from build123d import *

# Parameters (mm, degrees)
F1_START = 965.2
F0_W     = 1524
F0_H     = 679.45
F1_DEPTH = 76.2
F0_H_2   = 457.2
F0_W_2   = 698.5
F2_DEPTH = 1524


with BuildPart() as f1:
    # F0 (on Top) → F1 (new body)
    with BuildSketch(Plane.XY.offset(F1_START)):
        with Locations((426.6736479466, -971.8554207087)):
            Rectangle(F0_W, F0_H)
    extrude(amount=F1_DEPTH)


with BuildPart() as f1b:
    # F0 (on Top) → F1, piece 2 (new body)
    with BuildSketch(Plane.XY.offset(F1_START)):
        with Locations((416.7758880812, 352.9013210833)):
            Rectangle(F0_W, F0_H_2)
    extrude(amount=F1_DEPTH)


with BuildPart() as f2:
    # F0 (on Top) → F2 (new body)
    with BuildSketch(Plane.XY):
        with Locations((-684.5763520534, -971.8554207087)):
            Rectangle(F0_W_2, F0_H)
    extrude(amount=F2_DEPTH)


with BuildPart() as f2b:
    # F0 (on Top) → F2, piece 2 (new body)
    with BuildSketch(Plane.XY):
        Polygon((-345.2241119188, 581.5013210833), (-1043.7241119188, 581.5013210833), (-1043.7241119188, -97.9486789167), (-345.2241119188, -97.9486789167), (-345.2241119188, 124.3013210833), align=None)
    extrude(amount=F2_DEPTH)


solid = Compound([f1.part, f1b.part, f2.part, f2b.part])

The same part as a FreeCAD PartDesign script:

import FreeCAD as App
import Part
import Sketcher

V = App.Vector
Q = App.Units.Quantity

doc = App.newDocument("Part")
params = doc.addObject("Spreadsheet::Sheet", "Params")
for row, (alias, value) in enumerate([
    ("sketch1_width", "60 in"),
    ("sketch1_height", "26.75 in"),
    ("pad1_length", "3 in"),
    ("sketch2_width", "60 in"),
    ("sketch2_height", "18 in"),
    ("pad2_length", "3 in"),
    ("sketch3_width", "27.5 in"),
    ("sketch3_height", "26.75 in"),
    ("pad3_length", "60 in"),
    ("sketch4_width", "27.5 in"),
    ("sketch4_height", "26.75 in"),
    ("pad4_length", "60 in"),
], start=1):
    params.set(f"A{row}", alias)
    params.set(f"B{row}", "=" + value)
    params.setAlias(f"B{row}", alias)

body = doc.addObject("PartDesign::Body", "Body")

sketch1 = doc.addObject("Sketcher::SketchObject", "Sketch")
body.addObject(sketch1)
sketch1.AttachmentSupport = (doc.XY_Plane, [""])
sketch1.MapMode = "FlatFace"
sketch1.AttachmentOffset = App.Placement(V(0, 0, 38 * 25.4), App.Rotation())
sketch1.addGeometry(Part.LineSegment(V(-335, -632, 0), V(-335, -1312, 0)), False)
sketch1.addGeometry(Part.LineSegment(V(-335, -1312, 0), V(1189, -1312, 0)), False)
sketch1.addGeometry(Part.LineSegment(V(1189, -1312, 0), V(1189, -632, 0)), False)
sketch1.addGeometry(Part.LineSegment(V(1189, -632, 0), V(-335, -632, 0)), False)
sketch1.addConstraint(Sketcher.Constraint("Coincident", 0, 2, 1, 1))
sketch1.addConstraint(Sketcher.Constraint("Coincident", 1, 2, 2, 1))
sketch1.addConstraint(Sketcher.Constraint("Coincident", 2, 2, 3, 1))
sketch1.addConstraint(Sketcher.Constraint("Coincident", 3, 2, 0, 1))
sketch1.addConstraint(Sketcher.Constraint("Vertical", 0))
sketch1.addConstraint(Sketcher.Constraint("Horizontal", 1))
sketch1.addConstraint(Sketcher.Constraint("Vertical", 2))
sketch1.addConstraint(Sketcher.Constraint("Horizontal", 3))
sketch1.addConstraint(Sketcher.Constraint("DistanceX", 1, 1, 1, 2, Q("60 in")))
sketch1.addConstraint(Sketcher.Constraint("DistanceY", 0, 2, 0, 1, Q("26.75 in")))
sketch1.addConstraint(Sketcher.Constraint("DistanceY", 0, 2, -1, 1, Q("1311.580421 mm")))
sketch1.addConstraint(Sketcher.Constraint("DistanceX", 0, 2, -1, 1, Q("335.326352 mm")))
sketch1.setExpression("Constraints[8]", "Params.sketch1_width")
sketch1.setExpression("Constraints[9]", "Params.sketch1_height")
pad1 = doc.addObject("PartDesign::Pad", "Pad")
body.addObject(pad1)
pad1.Profile = sketch1
pad1.setExpression("Length", "Params.pad1_length")
body2 = doc.addObject("PartDesign::Body", "Body001")

sketch2 = doc.addObject("Sketcher::SketchObject", "Sketch001")
body2.addObject(sketch2)
sketch2.AttachmentSupport = (doc.getObject("XY_Plane001"), [""])
sketch2.MapMode = "FlatFace"
sketch2.AttachmentOffset = App.Placement(V(0, 0, 38 * 25.4), App.Rotation())
sketch2.addGeometry(Part.LineSegment(V(-345, 582, 0), V(-345, 124, 0)), False)
sketch2.addGeometry(Part.LineSegment(V(-345, 124, 0), V(1179, 124, 0)), False)
sketch2.addGeometry(Part.LineSegment(V(1179, 124, 0), V(1179, 582, 0)), False)
sketch2.addGeometry(Part.LineSegment(V(1179, 582, 0), V(-345, 582, 0)), False)
sketch2.addConstraint(Sketcher.Constraint("Coincident", 0, 2, 1, 1))
sketch2.addConstraint(Sketcher.Constraint("Coincident", 1, 2, 2, 1))
sketch2.addConstraint(Sketcher.Constraint("Coincident", 2, 2, 3, 1))
sketch2.addConstraint(Sketcher.Constraint("Coincident", 3, 2, 0, 1))
sketch2.addConstraint(Sketcher.Constraint("Vertical", 0))
sketch2.addConstraint(Sketcher.Constraint("Horizontal", 1))
sketch2.addConstraint(Sketcher.Constraint("Vertical", 2))
sketch2.addConstraint(Sketcher.Constraint("Horizontal", 3))
sketch2.addConstraint(Sketcher.Constraint("DistanceX", 1, 1, 1, 2, Q("60 in")))
sketch2.addConstraint(Sketcher.Constraint("DistanceY", 0, 2, 0, 1, Q("18 in")))
sketch2.addConstraint(Sketcher.Constraint("DistanceX", 0, 2, -1, 1, Q("345.224112 mm")))
sketch2.addConstraint(Sketcher.Constraint("DistanceY", -1, 1, 0, 2, Q("124.301321 mm")))
sketch2.setExpression("Constraints[8]", "Params.sketch2_width")
sketch2.setExpression("Constraints[9]", "Params.sketch2_height")
pad2 = doc.addObject("PartDesign::Pad", "Pad001")
body2.addObject(pad2)
pad2.Profile = sketch2
pad2.setExpression("Length", "Params.pad2_length")
body3 = doc.addObject("PartDesign::Body", "Body002")

sketch3 = doc.addObject("Sketcher::SketchObject", "Sketch002")
body3.addObject(sketch3)
sketch3.AttachmentSupport = (doc.getObject("XY_Plane002"), [""])
sketch3.MapMode = "FlatFace"
sketch3.addGeometry(Part.LineSegment(V(-1034, -632, 0), V(-1034, -1312, 0)), False)
sketch3.addGeometry(Part.LineSegment(V(-1034, -1312, 0), V(-335, -1312, 0)), False)
sketch3.addGeometry(Part.LineSegment(V(-335, -1312, 0), V(-335, -632, 0)), False)
sketch3.addGeometry(Part.LineSegment(V(-335, -632, 0), V(-1034, -632, 0)), False)
sketch3.addConstraint(Sketcher.Constraint("Coincident", 0, 2, 1, 1))
sketch3.addConstraint(Sketcher.Constraint("Coincident", 1, 2, 2, 1))
sketch3.addConstraint(Sketcher.Constraint("Coincident", 2, 2, 3, 1))
sketch3.addConstraint(Sketcher.Constraint("Coincident", 3, 2, 0, 1))
sketch3.addConstraint(Sketcher.Constraint("Vertical", 0))
sketch3.addConstraint(Sketcher.Constraint("Horizontal", 1))
sketch3.addConstraint(Sketcher.Constraint("Vertical", 2))
sketch3.addConstraint(Sketcher.Constraint("Horizontal", 3))
sketch3.addConstraint(Sketcher.Constraint("DistanceX", 1, 1, 1, 2, Q("27.5 in")))
sketch3.addConstraint(Sketcher.Constraint("DistanceY", 0, 2, 0, 1, Q("26.75 in")))
sketch3.addConstraint(Sketcher.Constraint("DistanceY", 0, 2, -1, 1, Q("1311.580421 mm")))
sketch3.addConstraint(Sketcher.Constraint("DistanceX", 0, 2, -1, 1, Q("1033.826352 mm")))
sketch3.setExpression("Constraints[8]", "Params.sketch3_width")
sketch3.setExpression("Constraints[9]", "Params.sketch3_height")
pad3 = doc.addObject("PartDesign::Pad", "Pad002")
body3.addObject(pad3)
pad3.Profile = sketch3
pad3.setExpression("Length", "Params.pad3_length")
body4 = doc.addObject("PartDesign::Body", "Body003")

sketch4 = doc.addObject("Sketcher::SketchObject", "Sketch003")
body4.addObject(sketch4)
sketch4.AttachmentSupport = (doc.getObject("XY_Plane003"), [""])
sketch4.MapMode = "FlatFace"
sketch4.addGeometry(Part.LineSegment(V(-345, 582, 0), V(-1044, 582, 0)), False)
sketch4.addGeometry(Part.LineSegment(V(-1044, 582, 0), V(-1044, -98, 0)), False)
sketch4.addGeometry(Part.LineSegment(V(-1044, -98, 0), V(-345, -98, 0)), False)
sketch4.addGeometry(Part.LineSegment(V(-345, -98, 0), V(-345, 582, 0)), False)
sketch4.addConstraint(Sketcher.Constraint("Coincident", 0, 2, 1, 1))
sketch4.addConstraint(Sketcher.Constraint("Coincident", 1, 2, 2, 1))
sketch4.addConstraint(Sketcher.Constraint("Coincident", 2, 2, 3, 1))
sketch4.addConstraint(Sketcher.Constraint("Coincident", 3, 2, 0, 1))
sketch4.addConstraint(Sketcher.Constraint("Horizontal", 0))
sketch4.addConstraint(Sketcher.Constraint("Vertical", 1))
sketch4.addConstraint(Sketcher.Constraint("Horizontal", 2))
sketch4.addConstraint(Sketcher.Constraint("Vertical", 3))
sketch4.addConstraint(Sketcher.Constraint("DistanceX", 0, 2, 0, 1, Q("27.5 in")))
sketch4.addConstraint(Sketcher.Constraint("DistanceY", 1, 2, 1, 1, Q("26.75 in")))
sketch4.addConstraint(Sketcher.Constraint("DistanceX", 0, 2, -1, 1, Q("1043.724112 mm")))
sketch4.addConstraint(Sketcher.Constraint("DistanceY", -1, 1, 0, 2, Q("581.501321 mm")))
sketch4.setExpression("Constraints[8]", "Params.sketch4_width")
sketch4.setExpression("Constraints[9]", "Params.sketch4_height")
pad4 = doc.addObject("PartDesign::Pad", "Pad003")
body4.addObject(pad4)
pad4.Profile = sketch4
pad4.setExpression("Length", "Params.pad4_length")

doc.recompute()
